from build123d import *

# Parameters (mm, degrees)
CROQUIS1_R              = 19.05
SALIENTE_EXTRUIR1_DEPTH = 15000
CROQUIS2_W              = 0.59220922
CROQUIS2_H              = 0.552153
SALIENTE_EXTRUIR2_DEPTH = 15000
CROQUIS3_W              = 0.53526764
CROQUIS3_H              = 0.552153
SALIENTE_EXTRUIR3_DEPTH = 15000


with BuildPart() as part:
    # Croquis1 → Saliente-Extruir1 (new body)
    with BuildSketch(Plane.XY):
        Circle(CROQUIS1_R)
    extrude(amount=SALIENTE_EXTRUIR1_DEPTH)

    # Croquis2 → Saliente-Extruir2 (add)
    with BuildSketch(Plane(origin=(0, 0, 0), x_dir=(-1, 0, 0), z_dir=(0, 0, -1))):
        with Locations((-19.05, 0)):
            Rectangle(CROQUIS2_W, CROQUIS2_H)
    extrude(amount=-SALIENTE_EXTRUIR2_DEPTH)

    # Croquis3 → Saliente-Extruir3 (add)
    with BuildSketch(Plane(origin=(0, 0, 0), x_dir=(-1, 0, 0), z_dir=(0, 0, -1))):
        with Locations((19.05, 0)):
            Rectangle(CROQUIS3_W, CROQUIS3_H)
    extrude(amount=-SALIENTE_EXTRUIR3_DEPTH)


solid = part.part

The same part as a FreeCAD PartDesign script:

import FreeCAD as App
import Part
import Sketcher

V = App.Vector
Q = App.Units.Quantity

doc = App.newDocument("Part")
body = doc.addObject("PartDesign::Body", "Body")

sketch1 = doc.addObject("Sketcher::SketchObject", "Sketch")
body.addObject(sketch1)
sketch1.AttachmentSupport = (doc.XY_Plane, [""])
sketch1.MapMode = "FlatFace"
sketch1.addGeometry(Part.Circle(V(0, 0, 0), V(0, 0, 1), 19), False)
sketch1.addConstraint([
    Sketcher.Constraint("Coincident", 0, 3, -1, 1),
    Sketcher.Constraint("Diameter", 0, Q("38.1 mm")),
])
pad1 = doc.addObject("PartDesign::Pad", "Pad")
body.addObject(pad1)
pad1.Profile = sketch1
pad1.Length = 15000

sketch2 = doc.addObject("Sketcher::SketchObject", "Sketch001")
body.addObject(sketch2)
sketch2.AttachmentSupport = (doc.XY_Plane, [""])
sketch2.MapMode = "FlatFace"
sketch2.addGeometry([
    Part.LineSegment(V(19.3, 0.3, 0), V(19.3, -0.3, 0)),
    Part.LineSegment(V(19.3, -0.3, 0), V(18.8, -0.3, 0)),
    Part.LineSegment(V(18.8, -0.3, 0), V(18.8, 0.3, 0)),
    Part.LineSegment(V(18.8, 0.3, 0), V(19.3, 0.3, 0)),
], False)
sketch2.addConstraint([
    Sketcher.Constraint("Coincident", 0, 2, 1, 1),
    Sketcher.Constraint("Coincident", 1, 2, 2, 1),
    Sketcher.Constraint("Coincident", 2, 2, 3, 1),
    Sketcher.Constraint("Coincident", 3, 2, 0, 1),
    Sketcher.Constraint("Vertical", 0),
    Sketcher.Constraint("Horizontal", 1),
    Sketcher.Constraint("Vertical", 2),
    Sketcher.Constraint("Horizontal", 3),
    Sketcher.Constraint("DistanceX", 1, 2, 1, 1, Q("0.592209 mm")),
    Sketcher.Constraint("DistanceY", 0, 2, 0, 1, Q("0.552153 mm")),
    Sketcher.Constraint("DistanceX", -1, 1, 0, 2, Q("19.346105 mm")),
    Sketcher.Constraint("DistanceY", 0, 2, -1, 1, Q("0.276077 mm")),
])
pad2 = doc.addObject("PartDesign::Pad", "Pad001")
body.addObject(pad2)
pad2.Profile = sketch2
pad2.Length = 15000

sketch3 = doc.addObject("Sketcher::SketchObject", "Sketch002")
body.addObject(sketch3)
sketch3.AttachmentSupport = (doc.XY_Plane, [""])
sketch3.MapMode = "FlatFace"
sketch3.addGeometry([
    Part.LineSegment(V(-18.8, 0.3, 0), V(-18.8, -0.3, 0)),
    Part.LineSegment(V(-18.8, -0.3, 0), V(-19.3, -0.3, 0)),
    Part.LineSegment(V(-19.3, -0.3, 0), V(-19.3, 0.3, 0)),
    Part.LineSegment(V(-19.3, 0.3, 0), V(-18.8, 0.3, 0)),
], False)
sketch3.addConstraint([
    Sketcher.Constraint("Coincident", 0, 2, 1, 1),
    Sketcher.Constraint("Coincident", 1, 2, 2, 1),
    Sketcher.Constraint("Coincident", 2, 2, 3, 1),
    Sketcher.Constraint("Coincident", 3, 2, 0, 1),
    Sketcher.Constraint("Vertical", 0),
    Sketcher.Constraint("Horizontal", 1),
    Sketcher.Constraint("Vertical", 2),
    Sketcher.Constraint("Horizontal", 3),
    Sketcher.Constraint("DistanceX", 1, 2, 1, 1, Q("0.535268 mm")),
    Sketcher.Constraint("DistanceY", 0, 2, 0, 1, Q("0.552153 mm")),
    Sketcher.Constraint("DistanceX", 0, 2, -1, 1, Q("18.782366 mm")),
    Sketcher.Constraint("DistanceY", 0, 2, -1, 1, Q("0.276077 mm")),
])
pad3 = doc.addObject("PartDesign::Pad", "Pad002")
body.addObject(pad3)
pad3.Profile = sketch3
pad3.Length = 15000

doc.recompute()
